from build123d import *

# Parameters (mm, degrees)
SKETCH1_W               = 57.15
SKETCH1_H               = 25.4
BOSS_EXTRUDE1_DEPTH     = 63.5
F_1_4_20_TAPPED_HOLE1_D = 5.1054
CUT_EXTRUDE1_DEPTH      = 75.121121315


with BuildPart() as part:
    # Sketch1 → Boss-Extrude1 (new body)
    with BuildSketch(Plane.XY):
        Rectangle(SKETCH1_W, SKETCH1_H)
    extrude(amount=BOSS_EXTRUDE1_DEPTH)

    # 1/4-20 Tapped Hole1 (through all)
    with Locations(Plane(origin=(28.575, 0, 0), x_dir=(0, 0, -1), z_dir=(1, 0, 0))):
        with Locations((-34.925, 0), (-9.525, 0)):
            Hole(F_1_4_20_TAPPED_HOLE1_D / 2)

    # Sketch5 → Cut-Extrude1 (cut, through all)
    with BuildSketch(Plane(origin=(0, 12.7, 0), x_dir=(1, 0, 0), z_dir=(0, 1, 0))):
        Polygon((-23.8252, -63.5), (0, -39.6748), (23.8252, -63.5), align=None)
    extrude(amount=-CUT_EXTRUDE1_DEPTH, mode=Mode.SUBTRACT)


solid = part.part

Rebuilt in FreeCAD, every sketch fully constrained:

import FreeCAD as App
import Part
import Sketcher
Q = App.Units.Quantity


def add_polygon(sketch, points):
    """Adds a closed chain of lines whose ends are joined by coincident constraints."""
    first, n = sketch.GeometryCount, len(points)
    for a, b in zip(points, points[1:] + points[:1]):
        sketch.addGeometry(Part.LineSegment(App.Vector(*a, 0), App.Vector(*b, 0)), False)
    for i in range(n):
        sketch.addConstraint(Sketcher.Constraint("Coincident", first + i, 2, first + (i + 1) % n, 1))

doc = App.newDocument("Part")
body = doc.addObject("PartDesign::Body", "Body")

# Sketch on XY plane
sketch1 = doc.addObject("Sketcher::SketchObject", "Sketch")
body.addObject(sketch1)
sketch1.AttachmentSupport = (doc.XY_Plane, [""])
sketch1.MapMode = "FlatFace"
add_polygon(sketch1, [(-29, 13), (-29, -13), (29, -13), (29, 13)])  # lines 0-3
sketch1.addConstraint(Sketcher.Constraint("Vertical", 0))
sketch1.addConstraint(Sketcher.Constraint("Horizontal", 1))
sketch1.addConstraint(Sketcher.Constraint("Vertical", 2))
sketch1.addConstraint(Sketcher.Constraint("Horizontal", 3))
sketch1.addConstraint(Sketcher.Constraint("Symmetric", 0, 2, 2, 2, -1, 1))
sketch1.addConstraint(Sketcher.Constraint("DistanceY", 0, 2, 0, 1, Q("1 in")))
sketch1.addConstraint(Sketcher.Constraint("DistanceX", 1, 1, 1, 2, Q("2.25 in")))
pad1 = doc.addObject("PartDesign::Pad", "Pad")
body.addObject(pad1)
pad1.Profile = sketch1
pad1.Length = Q("2.5 in")

# Sketch on YZ plane
sketch2 = doc.addObject("Sketcher::SketchObject", "Sketch001")
body.addObject(sketch2)
sketch2.AttachmentSupport = (doc.YZ_Plane, [""])
sketch2.MapMode = "FlatFace"
sketch2.AttachmentOffset = App.Placement(App.Vector(0, 0, 1.125 * 25.4), App.Rotation())
sketch2.addGeometry(Part.Circle(App.Vector(0, 34.9, 0), App.Vector(0, 0, 1), 2.6), False)
sketch2.addGeometry(Part.Circle(App.Vector(0, 9.5, 0), App.Vector(0, 0, 1), 2.6), False)
sketch2.addConstraint(Sketcher.Constraint("Equal", 0, 1))
sketch2.addConstraint(Sketcher.Constraint("PointOnObject", 0, 3, -2))
sketch2.addConstraint(Sketcher.Constraint("PointOnObject", 1, 3, -2))
sketch2.addConstraint(Sketcher.Constraint("Diameter", 0, Q("0.201 in")))
sketch2.addConstraint(Sketcher.Constraint("DistanceY", 1, 3, 0, 3, Q("1 in")))
sketch2.addConstraint(Sketcher.Constraint("DistanceY", -1, 1, 0, 3, Q("1.375 in")))
doc.recompute()
hole = doc.addObject("PartDesign::Hole", "Hole")
body.addObject(hole)
hole.Profile = sketch2
hole.ThreadType = "None"
hole.Diameter = Q("0.201 in")
hole.DepthType = "ThroughAll"

# Sketch on XZ plane
sketch3 = doc.addObject("Sketcher::SketchObject", "Sketch002")
body.addObject(sketch3)
sketch3.AttachmentSupport = (doc.XZ_Plane, [""])
sketch3.MapMode = "FlatFace"
sketch3.AttachmentOffset = App.Placement(App.Vector(0, 0, -0.5 * 25.4), App.Rotation())
add_polygon(sketch3, [(0, 40), (-24, 64), (24, 64)])  # lines 0-2
sketch3.addConstraint(Sketcher.Constraint("Horizontal", 1))
sketch3.addConstraint(Sketcher.Constraint("PointOnObject", 2, 2, -2))
sketch3.addConstraint(Sketcher.Constraint("Perpendicular", 0, 2))
sketch3.addConstraint(Sketcher.Constraint("Equal", 0, 2))
sketch3.addConstraint(Sketcher.Constraint("DistanceY", -1, 1, 0, 2, Q("2.5 in")))
sketch3.addConstraint(Sketcher.Constraint("DistanceX", 1, 1, 1, 2, Q("1.876 in")))
pocket1 = doc.addObject("PartDesign::Pocket", "Pocket")
body.addObject(pocket1)
pocket1.Profile = sketch3
pocket1.Type = "ThroughAll"
pocket1.Reversed = True

doc.recompute()
